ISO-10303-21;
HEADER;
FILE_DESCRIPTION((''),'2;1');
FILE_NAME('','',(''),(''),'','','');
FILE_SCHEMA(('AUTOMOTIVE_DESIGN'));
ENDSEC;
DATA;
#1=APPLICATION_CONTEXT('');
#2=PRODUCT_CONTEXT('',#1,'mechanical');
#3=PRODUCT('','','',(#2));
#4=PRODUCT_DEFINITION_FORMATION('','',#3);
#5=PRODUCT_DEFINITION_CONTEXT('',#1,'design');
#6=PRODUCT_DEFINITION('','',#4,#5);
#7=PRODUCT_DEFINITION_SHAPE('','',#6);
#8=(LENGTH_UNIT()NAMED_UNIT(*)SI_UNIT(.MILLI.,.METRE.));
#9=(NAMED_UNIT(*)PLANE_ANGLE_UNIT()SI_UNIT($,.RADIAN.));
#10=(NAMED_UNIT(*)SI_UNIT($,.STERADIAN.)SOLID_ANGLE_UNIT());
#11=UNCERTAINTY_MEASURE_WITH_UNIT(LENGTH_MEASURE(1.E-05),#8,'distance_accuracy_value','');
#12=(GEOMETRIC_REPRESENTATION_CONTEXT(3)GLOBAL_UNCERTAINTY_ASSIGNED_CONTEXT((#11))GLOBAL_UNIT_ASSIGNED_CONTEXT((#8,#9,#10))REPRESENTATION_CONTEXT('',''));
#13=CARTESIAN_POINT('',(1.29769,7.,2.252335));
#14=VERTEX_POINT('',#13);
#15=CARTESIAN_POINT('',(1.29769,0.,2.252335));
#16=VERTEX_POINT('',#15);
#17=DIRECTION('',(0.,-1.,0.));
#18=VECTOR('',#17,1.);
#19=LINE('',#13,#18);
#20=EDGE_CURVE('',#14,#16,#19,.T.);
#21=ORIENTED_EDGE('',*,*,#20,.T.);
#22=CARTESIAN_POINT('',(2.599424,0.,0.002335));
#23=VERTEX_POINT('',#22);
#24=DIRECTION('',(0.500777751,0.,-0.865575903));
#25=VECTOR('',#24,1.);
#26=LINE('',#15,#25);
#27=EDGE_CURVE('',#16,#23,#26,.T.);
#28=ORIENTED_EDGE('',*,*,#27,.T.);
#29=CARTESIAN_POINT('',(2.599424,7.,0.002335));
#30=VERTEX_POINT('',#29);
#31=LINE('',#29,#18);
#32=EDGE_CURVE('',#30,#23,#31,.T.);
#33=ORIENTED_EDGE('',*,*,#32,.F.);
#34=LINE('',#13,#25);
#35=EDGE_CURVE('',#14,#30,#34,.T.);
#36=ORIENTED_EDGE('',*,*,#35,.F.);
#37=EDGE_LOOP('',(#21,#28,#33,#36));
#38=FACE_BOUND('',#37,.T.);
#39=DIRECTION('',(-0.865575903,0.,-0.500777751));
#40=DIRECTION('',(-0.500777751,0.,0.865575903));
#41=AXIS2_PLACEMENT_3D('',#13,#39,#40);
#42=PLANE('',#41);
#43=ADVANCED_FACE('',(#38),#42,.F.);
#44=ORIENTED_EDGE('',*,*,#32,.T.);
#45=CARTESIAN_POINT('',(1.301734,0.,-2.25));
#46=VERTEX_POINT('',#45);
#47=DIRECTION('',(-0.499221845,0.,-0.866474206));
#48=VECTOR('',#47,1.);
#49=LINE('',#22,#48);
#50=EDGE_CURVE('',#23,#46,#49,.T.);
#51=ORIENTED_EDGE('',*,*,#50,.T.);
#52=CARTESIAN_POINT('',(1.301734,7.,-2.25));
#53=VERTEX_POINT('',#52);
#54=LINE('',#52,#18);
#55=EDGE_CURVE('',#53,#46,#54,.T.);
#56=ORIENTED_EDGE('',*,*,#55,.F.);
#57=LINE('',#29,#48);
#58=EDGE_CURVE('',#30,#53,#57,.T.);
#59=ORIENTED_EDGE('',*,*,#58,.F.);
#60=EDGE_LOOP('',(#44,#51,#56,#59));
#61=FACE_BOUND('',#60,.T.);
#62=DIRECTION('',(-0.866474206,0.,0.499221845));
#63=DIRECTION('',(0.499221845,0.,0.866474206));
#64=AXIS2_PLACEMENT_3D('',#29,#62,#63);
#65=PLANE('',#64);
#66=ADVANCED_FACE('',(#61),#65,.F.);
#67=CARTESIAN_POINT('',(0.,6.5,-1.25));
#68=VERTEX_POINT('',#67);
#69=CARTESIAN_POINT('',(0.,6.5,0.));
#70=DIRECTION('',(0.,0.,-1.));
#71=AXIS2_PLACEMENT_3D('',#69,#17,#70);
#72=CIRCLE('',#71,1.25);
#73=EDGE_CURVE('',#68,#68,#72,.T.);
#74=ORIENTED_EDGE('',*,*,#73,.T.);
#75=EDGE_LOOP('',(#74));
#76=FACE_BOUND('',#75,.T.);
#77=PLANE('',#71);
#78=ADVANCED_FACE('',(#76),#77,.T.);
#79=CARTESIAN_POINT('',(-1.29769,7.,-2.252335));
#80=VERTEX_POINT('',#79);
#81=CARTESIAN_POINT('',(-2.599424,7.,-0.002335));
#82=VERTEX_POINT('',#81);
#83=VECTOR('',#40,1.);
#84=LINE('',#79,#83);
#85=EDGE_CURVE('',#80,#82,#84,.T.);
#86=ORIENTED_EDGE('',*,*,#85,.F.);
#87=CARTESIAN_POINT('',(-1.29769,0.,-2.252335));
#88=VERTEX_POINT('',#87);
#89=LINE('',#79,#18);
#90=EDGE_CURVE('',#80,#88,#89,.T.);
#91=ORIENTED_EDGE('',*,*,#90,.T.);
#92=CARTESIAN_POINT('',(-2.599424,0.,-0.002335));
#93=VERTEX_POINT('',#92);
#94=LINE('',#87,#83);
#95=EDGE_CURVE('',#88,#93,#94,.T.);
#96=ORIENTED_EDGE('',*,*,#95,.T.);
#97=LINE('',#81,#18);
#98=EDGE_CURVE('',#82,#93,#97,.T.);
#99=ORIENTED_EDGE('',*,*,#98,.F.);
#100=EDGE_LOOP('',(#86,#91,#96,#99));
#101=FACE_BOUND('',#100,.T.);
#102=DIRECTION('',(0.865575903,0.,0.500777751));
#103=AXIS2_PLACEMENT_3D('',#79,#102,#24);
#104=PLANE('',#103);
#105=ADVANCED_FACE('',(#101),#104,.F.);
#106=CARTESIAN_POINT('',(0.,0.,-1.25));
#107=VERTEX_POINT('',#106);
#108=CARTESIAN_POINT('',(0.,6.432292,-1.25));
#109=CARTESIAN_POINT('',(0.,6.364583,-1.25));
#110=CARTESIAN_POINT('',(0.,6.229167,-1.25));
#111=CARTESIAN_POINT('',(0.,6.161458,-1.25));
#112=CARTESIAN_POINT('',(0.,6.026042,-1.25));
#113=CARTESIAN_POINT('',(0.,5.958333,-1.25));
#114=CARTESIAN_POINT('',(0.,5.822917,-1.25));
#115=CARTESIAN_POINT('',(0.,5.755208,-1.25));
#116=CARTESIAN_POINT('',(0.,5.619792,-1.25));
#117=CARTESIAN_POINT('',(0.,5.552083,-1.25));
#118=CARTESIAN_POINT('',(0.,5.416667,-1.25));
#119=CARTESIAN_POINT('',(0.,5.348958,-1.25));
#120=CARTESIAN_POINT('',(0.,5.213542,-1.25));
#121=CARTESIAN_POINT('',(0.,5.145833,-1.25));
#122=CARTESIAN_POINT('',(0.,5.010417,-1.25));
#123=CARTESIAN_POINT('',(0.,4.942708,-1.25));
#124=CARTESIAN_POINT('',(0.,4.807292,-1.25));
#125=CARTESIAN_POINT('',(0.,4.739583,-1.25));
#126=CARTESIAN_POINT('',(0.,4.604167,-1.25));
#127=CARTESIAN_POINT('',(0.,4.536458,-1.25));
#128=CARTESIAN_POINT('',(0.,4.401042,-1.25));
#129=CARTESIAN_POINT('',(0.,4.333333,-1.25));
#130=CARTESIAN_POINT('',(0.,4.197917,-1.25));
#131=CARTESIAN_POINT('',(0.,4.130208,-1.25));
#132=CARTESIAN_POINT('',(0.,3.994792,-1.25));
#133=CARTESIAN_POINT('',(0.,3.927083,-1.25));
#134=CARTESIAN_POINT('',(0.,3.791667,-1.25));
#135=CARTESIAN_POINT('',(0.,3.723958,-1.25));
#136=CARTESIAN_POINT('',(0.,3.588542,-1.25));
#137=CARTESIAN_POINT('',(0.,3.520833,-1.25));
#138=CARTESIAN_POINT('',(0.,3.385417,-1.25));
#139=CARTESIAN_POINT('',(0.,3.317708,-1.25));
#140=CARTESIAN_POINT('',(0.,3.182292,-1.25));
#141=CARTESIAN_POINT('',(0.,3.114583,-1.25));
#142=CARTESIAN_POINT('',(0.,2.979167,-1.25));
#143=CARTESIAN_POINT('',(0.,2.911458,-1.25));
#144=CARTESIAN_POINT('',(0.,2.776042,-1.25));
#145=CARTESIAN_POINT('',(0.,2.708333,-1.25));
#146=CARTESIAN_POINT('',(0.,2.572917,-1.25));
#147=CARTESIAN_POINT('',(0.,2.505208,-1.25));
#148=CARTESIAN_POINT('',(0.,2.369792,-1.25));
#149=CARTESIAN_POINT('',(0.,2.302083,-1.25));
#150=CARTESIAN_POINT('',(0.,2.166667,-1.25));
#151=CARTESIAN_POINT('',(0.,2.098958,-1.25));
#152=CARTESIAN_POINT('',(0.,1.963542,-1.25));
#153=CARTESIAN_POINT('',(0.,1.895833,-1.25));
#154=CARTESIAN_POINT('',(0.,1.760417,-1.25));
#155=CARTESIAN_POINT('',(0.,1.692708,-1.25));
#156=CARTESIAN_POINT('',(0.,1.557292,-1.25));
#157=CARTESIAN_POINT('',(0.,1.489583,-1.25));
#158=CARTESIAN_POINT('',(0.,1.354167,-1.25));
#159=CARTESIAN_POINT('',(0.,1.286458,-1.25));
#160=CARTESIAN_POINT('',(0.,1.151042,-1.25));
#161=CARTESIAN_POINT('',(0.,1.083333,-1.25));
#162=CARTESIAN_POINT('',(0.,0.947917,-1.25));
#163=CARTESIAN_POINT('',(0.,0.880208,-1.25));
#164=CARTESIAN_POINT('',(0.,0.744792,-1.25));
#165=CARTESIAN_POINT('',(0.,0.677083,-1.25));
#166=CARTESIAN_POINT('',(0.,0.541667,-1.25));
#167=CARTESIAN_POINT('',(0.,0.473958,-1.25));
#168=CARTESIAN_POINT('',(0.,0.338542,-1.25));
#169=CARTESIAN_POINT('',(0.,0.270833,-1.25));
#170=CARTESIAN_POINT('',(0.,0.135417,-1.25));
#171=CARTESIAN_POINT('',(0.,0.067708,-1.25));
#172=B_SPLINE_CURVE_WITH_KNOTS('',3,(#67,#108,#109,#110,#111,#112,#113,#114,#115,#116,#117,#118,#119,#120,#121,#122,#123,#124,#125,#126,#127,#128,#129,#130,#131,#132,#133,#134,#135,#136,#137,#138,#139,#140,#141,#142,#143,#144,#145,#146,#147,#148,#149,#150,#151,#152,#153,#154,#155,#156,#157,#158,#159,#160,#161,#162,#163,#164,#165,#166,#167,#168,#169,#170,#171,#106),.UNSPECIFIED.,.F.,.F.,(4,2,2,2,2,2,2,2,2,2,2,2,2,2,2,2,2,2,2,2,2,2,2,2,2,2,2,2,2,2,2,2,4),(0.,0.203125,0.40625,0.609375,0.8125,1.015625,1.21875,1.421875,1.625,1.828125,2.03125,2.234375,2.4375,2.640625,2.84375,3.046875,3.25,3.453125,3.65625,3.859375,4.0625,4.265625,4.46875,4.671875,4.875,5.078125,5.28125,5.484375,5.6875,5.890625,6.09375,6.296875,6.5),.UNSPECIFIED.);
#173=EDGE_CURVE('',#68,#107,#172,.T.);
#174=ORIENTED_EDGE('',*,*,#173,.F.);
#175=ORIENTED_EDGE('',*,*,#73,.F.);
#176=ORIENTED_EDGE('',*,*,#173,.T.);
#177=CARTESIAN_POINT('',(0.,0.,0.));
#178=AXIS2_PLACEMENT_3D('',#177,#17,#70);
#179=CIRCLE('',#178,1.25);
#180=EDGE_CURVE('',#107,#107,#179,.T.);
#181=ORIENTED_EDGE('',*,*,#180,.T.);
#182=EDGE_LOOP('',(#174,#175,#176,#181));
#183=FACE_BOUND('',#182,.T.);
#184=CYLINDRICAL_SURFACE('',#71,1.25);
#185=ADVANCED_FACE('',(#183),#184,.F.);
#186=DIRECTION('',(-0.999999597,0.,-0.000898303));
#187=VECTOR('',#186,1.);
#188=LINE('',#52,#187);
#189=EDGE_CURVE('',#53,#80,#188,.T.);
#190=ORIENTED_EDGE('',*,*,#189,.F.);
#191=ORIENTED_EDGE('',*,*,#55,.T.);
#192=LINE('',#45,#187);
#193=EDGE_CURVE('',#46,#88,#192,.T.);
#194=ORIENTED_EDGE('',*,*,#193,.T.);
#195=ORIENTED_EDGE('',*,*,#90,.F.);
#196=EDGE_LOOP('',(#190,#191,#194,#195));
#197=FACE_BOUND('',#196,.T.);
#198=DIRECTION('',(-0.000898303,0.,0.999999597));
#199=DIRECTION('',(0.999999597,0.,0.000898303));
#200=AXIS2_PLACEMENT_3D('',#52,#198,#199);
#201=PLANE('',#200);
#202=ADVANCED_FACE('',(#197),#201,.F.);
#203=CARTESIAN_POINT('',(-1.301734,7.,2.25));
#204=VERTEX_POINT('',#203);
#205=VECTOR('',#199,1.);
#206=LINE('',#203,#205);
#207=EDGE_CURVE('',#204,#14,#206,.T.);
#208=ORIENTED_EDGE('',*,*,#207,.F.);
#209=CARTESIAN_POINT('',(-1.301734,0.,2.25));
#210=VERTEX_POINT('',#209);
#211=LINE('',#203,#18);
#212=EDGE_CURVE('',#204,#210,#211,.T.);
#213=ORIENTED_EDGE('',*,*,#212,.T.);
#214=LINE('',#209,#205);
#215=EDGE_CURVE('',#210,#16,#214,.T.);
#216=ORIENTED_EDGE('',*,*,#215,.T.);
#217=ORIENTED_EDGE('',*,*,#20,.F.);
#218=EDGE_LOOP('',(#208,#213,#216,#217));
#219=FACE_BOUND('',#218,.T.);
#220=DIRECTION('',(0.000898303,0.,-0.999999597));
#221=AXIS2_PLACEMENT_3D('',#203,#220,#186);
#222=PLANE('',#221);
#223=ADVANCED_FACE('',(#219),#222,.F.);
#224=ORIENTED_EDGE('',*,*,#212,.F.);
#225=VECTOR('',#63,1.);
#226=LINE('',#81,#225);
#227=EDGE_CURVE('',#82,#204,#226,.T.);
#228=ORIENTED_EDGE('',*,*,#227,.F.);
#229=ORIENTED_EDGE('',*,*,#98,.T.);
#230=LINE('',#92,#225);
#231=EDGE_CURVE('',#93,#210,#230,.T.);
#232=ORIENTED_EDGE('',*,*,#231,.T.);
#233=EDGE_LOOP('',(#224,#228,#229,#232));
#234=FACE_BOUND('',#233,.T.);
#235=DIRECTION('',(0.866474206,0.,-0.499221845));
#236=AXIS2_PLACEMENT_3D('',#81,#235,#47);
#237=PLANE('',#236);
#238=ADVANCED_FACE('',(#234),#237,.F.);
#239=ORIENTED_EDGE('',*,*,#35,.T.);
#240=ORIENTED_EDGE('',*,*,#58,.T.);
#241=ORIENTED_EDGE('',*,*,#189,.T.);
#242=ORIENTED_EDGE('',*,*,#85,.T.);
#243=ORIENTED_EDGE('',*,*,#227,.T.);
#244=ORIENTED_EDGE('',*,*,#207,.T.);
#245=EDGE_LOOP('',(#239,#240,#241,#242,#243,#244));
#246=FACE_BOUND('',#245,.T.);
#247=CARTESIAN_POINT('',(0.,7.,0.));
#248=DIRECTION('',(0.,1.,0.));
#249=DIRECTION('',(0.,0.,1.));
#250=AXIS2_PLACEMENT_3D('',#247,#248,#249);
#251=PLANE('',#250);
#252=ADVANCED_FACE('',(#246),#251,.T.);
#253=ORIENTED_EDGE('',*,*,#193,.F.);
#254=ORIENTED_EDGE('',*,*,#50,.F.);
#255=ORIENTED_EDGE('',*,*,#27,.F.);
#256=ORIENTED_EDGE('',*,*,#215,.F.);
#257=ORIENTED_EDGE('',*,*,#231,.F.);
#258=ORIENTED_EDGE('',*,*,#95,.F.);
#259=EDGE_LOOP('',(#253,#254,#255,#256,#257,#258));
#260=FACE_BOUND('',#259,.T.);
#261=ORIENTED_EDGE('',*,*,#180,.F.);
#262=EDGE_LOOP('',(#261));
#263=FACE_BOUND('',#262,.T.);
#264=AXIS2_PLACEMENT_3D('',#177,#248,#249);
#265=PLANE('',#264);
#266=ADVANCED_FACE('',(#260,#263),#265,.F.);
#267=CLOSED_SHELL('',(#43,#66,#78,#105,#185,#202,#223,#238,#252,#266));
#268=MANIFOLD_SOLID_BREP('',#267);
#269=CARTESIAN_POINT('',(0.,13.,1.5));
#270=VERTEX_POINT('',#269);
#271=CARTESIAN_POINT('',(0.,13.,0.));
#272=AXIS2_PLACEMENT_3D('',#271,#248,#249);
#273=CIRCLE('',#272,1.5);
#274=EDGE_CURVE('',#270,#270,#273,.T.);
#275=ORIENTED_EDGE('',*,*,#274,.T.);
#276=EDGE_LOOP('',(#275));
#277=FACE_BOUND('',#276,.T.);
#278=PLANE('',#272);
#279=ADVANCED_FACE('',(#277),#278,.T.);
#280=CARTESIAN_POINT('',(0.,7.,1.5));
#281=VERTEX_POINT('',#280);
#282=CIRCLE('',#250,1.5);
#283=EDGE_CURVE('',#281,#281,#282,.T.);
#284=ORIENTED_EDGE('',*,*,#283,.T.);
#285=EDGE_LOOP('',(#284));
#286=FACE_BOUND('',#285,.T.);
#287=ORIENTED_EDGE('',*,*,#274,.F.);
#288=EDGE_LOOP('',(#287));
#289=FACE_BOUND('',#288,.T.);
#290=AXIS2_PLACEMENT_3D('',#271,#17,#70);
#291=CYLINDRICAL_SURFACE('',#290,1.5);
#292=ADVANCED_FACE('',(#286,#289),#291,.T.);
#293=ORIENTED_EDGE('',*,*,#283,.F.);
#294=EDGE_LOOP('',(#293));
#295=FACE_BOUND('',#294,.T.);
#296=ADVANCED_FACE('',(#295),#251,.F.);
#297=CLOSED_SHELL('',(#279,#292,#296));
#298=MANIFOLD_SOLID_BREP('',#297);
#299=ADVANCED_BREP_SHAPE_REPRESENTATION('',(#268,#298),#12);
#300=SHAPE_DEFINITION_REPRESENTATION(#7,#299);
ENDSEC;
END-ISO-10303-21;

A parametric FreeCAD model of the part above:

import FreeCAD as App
import Part
import Sketcher
from FreeCAD import Vector


def add_polygon(sketch, points):
    """Adds a closed chain of lines whose ends are joined by coincident constraints."""
    first, n = sketch.GeometryCount, len(points)
    for a, b in zip(points, points[1:] + points[:1]):
        sketch.addGeometry(Part.LineSegment(App.Vector(*a, 0), App.Vector(*b, 0)), False)
    for i in range(n):
        sketch.addConstraint(Sketcher.Constraint("Coincident", first + i, 2, first + (i + 1) % n, 1))

doc = App.newDocument("Part")
params = doc.addObject("Spreadsheet::Sheet", "Params")
for row, (alias, value) in enumerate([
    ("pad1_length", "7 mm"),
    ("sketch2_diameter", "2.5 mm"),
    ("pocket1_length", "6.5 mm"),
    ("sketch3_diameter", "3 mm"),
    ("pad2_length", "6 mm"),
], start=1):
    params.set(f"A{row}", alias)
    params.set(f"B{row}", "=" + value)
    params.setAlias(f"B{row}", alias)

body = doc.addObject("PartDesign::Body", "Body")

sketch1 = doc.addObject("Sketcher::SketchObject", "Sketch")
body.addObject(sketch1)
sketch1.AttachmentSupport = (doc.XZ_Plane, [""])
sketch1.MapMode = "FlatFace"
add_polygon(sketch1, [(-1.3, 2.2), (1.3, 2.3), (2.6, 0), (1.3, -2.2), (-1.3, -2.3), (-2.6, 0)])
sketch1.addConstraint([
    Sketcher.Constraint("Symmetric", 0, 2, 3, 2, -1, 1),
    Sketcher.Constraint("Symmetric", 1, 2, 4, 2, -1, 1),
    Sketcher.Constraint("Symmetric", 2, 2, 5, 2, -1, 1),
    Sketcher.Constraint("Equal", 0, 1),
    Sketcher.Constraint("Equal", 1, 2),
    Sketcher.Constraint("DistanceY", 2, 2, 5, 2, 4.5),
    Sketcher.Constraint("DistanceY", 1, 2, 0, 2, 2.25),
    Sketcher.Constraint("DistanceX", -1, 1, 0, 2, 1.29769),
    Sketcher.Constraint("DistanceX", 2, 2, 1, 2, 1.29769),
])
pad1 = doc.addObject("PartDesign::Pad", "Pad")
body.addObject(pad1)
pad1.Profile = sketch1
pad1.setExpression("Length", "Params.pad1_length")
pad1.Reversed = True

sketch2 = doc.addObject("Sketcher::SketchObject", "Sketch001")
body.addObject(sketch2)
sketch2.AttachmentSupport = (doc.XZ_Plane, [""])
sketch2.MapMode = "FlatFace"
sketch2.addGeometry(Part.Circle(Vector(0, 0, 0), Vector(0, 0, 1), 1.2), False)
sketch2.addConstraint([
    Sketcher.Constraint("Coincident", 0, 3, -1, 1),
    Sketcher.Constraint("Diameter", 0, 2.5),
])
sketch2.setExpression("Constraints[1]", "Params.sketch2_diameter")
pocket1 = doc.addObject("PartDesign::Pocket", "Pocket")
body.addObject(pocket1)
pocket1.Profile = sketch2
pocket1.setExpression("Length", "Params.pocket1_length")
body2 = doc.addObject("PartDesign::Body", "Body001")

sketch3 = doc.addObject("Sketcher::SketchObject", "Sketch002")
body2.addObject(sketch3)
sketch3.AttachmentSupport = (doc.getObject("XZ_Plane001"), [""])
sketch3.MapMode = "FlatFace"
sketch3.AttachmentOffset = App.Placement(Vector(0, 0, -7), App.Rotation())
sketch3.addGeometry(Part.Circle(Vector(0, 0, 0), Vector(0, 0, 1), 1.5), False)
sketch3.addConstraint([
    Sketcher.Constraint("Coincident", 0, 3, -1, 1),
    Sketcher.Constraint("Diameter", 0, 3.0),
])
sketch3.setExpression("Constraints[1]", "Params.sketch3_diameter")
pad2 = doc.addObject("PartDesign::Pad", "Pad001")
body2.addObject(pad2)
pad2.Profile = sketch3
pad2.setExpression("Length", "Params.pad2_length")
pad2.Reversed = True

doc.recompute()
